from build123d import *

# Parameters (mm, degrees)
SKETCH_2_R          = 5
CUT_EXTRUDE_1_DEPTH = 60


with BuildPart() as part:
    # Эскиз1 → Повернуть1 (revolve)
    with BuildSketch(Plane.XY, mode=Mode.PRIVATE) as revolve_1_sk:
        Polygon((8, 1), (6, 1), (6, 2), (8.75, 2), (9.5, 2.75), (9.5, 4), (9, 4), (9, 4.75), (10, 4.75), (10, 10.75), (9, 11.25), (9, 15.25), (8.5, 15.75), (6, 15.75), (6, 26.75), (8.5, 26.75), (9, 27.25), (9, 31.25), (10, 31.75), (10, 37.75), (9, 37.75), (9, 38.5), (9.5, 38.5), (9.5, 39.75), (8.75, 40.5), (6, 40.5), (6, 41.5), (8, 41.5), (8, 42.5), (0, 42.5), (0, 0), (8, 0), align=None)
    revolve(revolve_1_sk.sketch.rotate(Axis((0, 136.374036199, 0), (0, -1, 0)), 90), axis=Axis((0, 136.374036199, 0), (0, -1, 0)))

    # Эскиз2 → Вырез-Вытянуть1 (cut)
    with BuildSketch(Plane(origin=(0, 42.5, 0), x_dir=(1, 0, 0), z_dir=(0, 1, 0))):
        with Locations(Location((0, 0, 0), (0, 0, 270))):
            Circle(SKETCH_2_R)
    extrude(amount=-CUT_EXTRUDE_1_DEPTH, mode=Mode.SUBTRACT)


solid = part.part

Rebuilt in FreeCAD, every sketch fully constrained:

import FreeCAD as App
import Part
import Sketcher

V = App.Vector
Q = App.Units.Quantity

doc = App.newDocument("Part")
params = doc.addObject("Spreadsheet::Sheet", "Params")
for row, (alias, value) in enumerate([
    ("sketch1_width", "2 mm"),
    ("sketch1_width2", "1 mm"),
    ("sketch1_width3", "8 mm"),
    ("sketch1_height", "6 mm"),
    ("sketch1_height2", "4 mm"),
    ("revolution_angle", "360 deg"),
    ("sketch2_diameter", "10 mm"),
    ("pocket1_length", "60 mm"),
], start=1):
    params.set(f"A{row}", alias)
    params.set(f"B{row}", "=" + value)
    params.setAlias(f"B{row}", alias)

body = doc.addObject("PartDesign::Body", "Body")

sketch1 = body.newObject("Sketcher::SketchObject", "Sketch")
sketch1.AttachmentSupport = (doc.getObject("XY_Plane"), [""])
sketch1.MapMode = "FlatFace"
sketch1.addGeometry([
    Part.LineSegment(V(8, 1, 0), V(6, 1, 0)),
    Part.LineSegment(V(6, 1, 0), V(6, 2, 0)),
    Part.LineSegment(V(6, 2, 0), V(8.8, 2, 0)),
    Part.LineSegment(V(8.8, 2, 0), V(9.5, 2.8, 0)),
    Part.LineSegment(V(9.5, 2.8, 0), V(9.5, 4, 0)),
    Part.LineSegment(V(9.5, 4, 0), V(9, 4, 0)),
    Part.LineSegment(V(9, 4, 0), V(9, 4.8, 0)),
    Part.LineSegment(V(9, 4.8, 0), V(10, 4.8, 0)),
    Part.LineSegment(V(10, 4.8, 0), V(10, 10.8, 0)),
    Part.LineSegment(V(10, 10.8, 0), V(9, 11.2, 0)),
    Part.LineSegment(V(9, 11.2, 0), V(9, 15.2, 0)),
    Part.LineSegment(V(9, 15.2, 0), V(8.5, 15.8, 0)),
    Part.LineSegment(V(8.5, 15.8, 0), V(6, 15.8, 0)),
    Part.LineSegment(V(6, 15.8, 0), V(6, 26.8, 0)),
    Part.LineSegment(V(6, 26.8, 0), V(8.5, 26.8, 0)),
    Part.LineSegment(V(8.5, 26.8, 0), V(9, 27.2, 0)),
    Part.LineSegment(V(9, 27.2, 0), V(9, 31.2, 0)),
    Part.LineSegment(V(9, 31.2, 0), V(10, 31.8, 0)),
    Part.LineSegment(V(10, 31.8, 0), V(10, 37.8, 0)),
    Part.LineSegment(V(10, 37.8, 0), V(9, 37.8, 0)),
    Part.LineSegment(V(9, 37.8, 0), V(9, 38.5, 0)),
    Part.LineSegment(V(9, 38.5, 0), V(9.5, 38.5, 0)),
    Part.LineSegment(V(9.5, 38.5, 0), V(9.5, 39.8, 0)),
    Part.LineSegment(V(9.5, 39.8, 0), V(8.8, 40.5, 0)),
    Part.LineSegment(V(8.8, 40.5, 0), V(6, 40.5, 0)),
    Part.LineSegment(V(6, 40.5, 0), V(6, 41.5, 0)),
    Part.LineSegment(V(6, 41.5, 0), V(8, 41.5, 0)),
    Part.LineSegment(V(8, 41.5, 0), V(8, 42.5, 0)),
    Part.LineSegment(V(8, 42.5, 0), V(0, 42.5, 0)),
    Part.LineSegment(V(0, 42.5, 0), V(0, 0, 0)),
    Part.LineSegment(V(0, 0, 0), V(8, 0, 0)),
    Part.LineSegment(V(8, 0, 0), V(8, 1, 0)),
], False)
sketch1.addConstraint([
    Sketcher.Constraint("Coincident", 0, 2, 1, 1),
    Sketcher.Constraint("Coincident", 1, 2, 2, 1),
    Sketcher.Constraint("Coincident", 2, 2, 3, 1),
    Sketcher.Constraint("Coincident", 3, 2, 4, 1),
    Sketcher.Constraint("Coincident", 4, 2, 5, 1),
    Sketcher.Constraint("Coincident", 5, 2, 6, 1),
    Sketcher.Constraint("Coincident", 6, 2, 7, 1),
    Sketcher.Constraint("Coincident", 7, 2, 8, 1),
    Sketcher.Constraint("Coincident", 8, 2, 9, 1),
    Sketcher.Constraint("Coincident", 9, 2, 10, 1),
    Sketcher.Constraint("Coincident", 10, 2, 11, 1),
    Sketcher.Constraint("Coincident", 11, 2, 12, 1),
    Sketcher.Constraint("Coincident", 12, 2, 13, 1),
    Sketcher.Constraint("Coincident", 13, 2, 14, 1),
    Sketcher.Constraint("Coincident", 14, 2, 15, 1),
    Sketcher.Constraint("Coincident", 15, 2, 16, 1),
    Sketcher.Constraint("Coincident", 16, 2, 17, 1),
    Sketcher.Constraint("Coincident", 17, 2, 18, 1),
    Sketcher.Constraint("Coincident", 18, 2, 19, 1),
    Sketcher.Constraint("Coincident", 19, 2, 20, 1),
    Sketcher.Constraint("Coincident", 20, 2, 21, 1),
    Sketcher.Constraint("Coincident", 21, 2, 22, 1),
    Sketcher.Constraint("Coincident", 22, 2, 23, 1),
    Sketcher.Constraint("Coincident", 23, 2, 24, 1),
    Sketcher.Constraint("Coincident", 24, 2, 25, 1),
    Sketcher.Constraint("Coincident", 25, 2, 26, 1),
    Sketcher.Constraint("Coincident", 26, 2, 27, 1),
    Sketcher.Constraint("Coincident", 27, 2, 28, 1),
    Sketcher.Constraint("Coincident", 28, 2, 29, 1),
    Sketcher.Constraint("Coincident", 29, 2, 30, 1),
    Sketcher.Constraint("Coincident", 30, 2, 31, 1),
    Sketcher.Constraint("Coincident", 31, 2, 0, 1),
    Sketcher.Constraint("Horizontal", 0),
    Sketcher.Constraint("Vertical", 1),
    Sketcher.Constraint("Horizontal", 2),
    Sketcher.Constraint("Vertical", 4),
    Sketcher.Constraint("Horizontal", 5),
    Sketcher.Constraint("Vertical", 6),
    Sketcher.Constraint("Horizontal", 7),
    Sketcher.Constraint("Vertical", 8),
    Sketcher.Constraint("Vertical", 10),
    Sketcher.Constraint("Horizontal", 12),
    Sketcher.Constraint("Vertical", 13),
    Sketcher.Constraint("Horizontal", 14),
    Sketcher.Constraint("Vertical", 16),
    Sketcher.Constraint("Vertical", 18),
    Sketcher.Constraint("Horizontal", 19),
    Sketcher.Constraint("Vertical", 20),
    Sketcher.Constraint("Horizontal", 21),
    Sketcher.Constraint("Vertical", 22),
    Sketcher.Constraint("Horizontal", 24),
    Sketcher.Constraint("Vertical", 25),
    Sketcher.Constraint("Horizontal", 26),
    Sketcher.Constraint("Vertical", 27),
    Sketcher.Constraint("Horizontal", 28),
    Sketcher.Constraint("Vertical", 29),
    Sketcher.Constraint("Horizontal", 30),
    Sketcher.Constraint("Vertical", 31),
    Sketcher.Constraint("Coincident", 29, 2, -1, 1),
    Sketcher.Constraint("Perpendicular", 3, 11),
    Sketcher.Constraint("Perpendicular", 11, 15),
    Sketcher.Constraint("Perpendicular", 15, 23),
    Sketcher.Constraint("Vertical", 6, 2, 9, 2),
    Sketcher.Constraint("Vertical", 1, 2, 12, 2),
    Sketcher.Constraint("Vertical", 11, 2, 14, 2),
    Sketcher.Constraint("Vertical", 10, 2, 15, 2),
    Sketcher.Constraint("Vertical", 8, 2, 17, 2),
    Sketcher.Constraint("Vertical", 16, 2, 19, 2),
    Sketcher.Constraint("Vertical", 4, 2, 21, 2),
    Sketcher.Constraint("Vertical", 2, 2, 23, 2),
    Sketcher.Constraint("Vertical", 13, 2, 24, 2),
    Sketcher.Constraint("Vertical", 27, 2, 30, 2),
    Sketcher.Constraint("Equal", 19, 1),
    Sketcher.Constraint("Equal", 10, 16),
    Sketcher.Constraint("Equal", 8, 18),
    Sketcher.Constraint("Equal", 6, 20),
    Sketcher.Constraint("Equal", 4, 22),
    Sketcher.Constraint("Equal", 1, 25),
    Sketcher.Constraint("Equal", 25, 27),
    Sketcher.Constraint("Equal", 27, 31),
    Sketcher.Constraint("Equal", 11, 15),
    Sketcher.Constraint("Equal", 9, 17),
    Sketcher.Constraint("DistanceX", 0, 2, 0, 1, Q("2 mm")),
    Sketcher.Constraint("DistanceX", 7, 1, 7, 2, Q("1 mm")),
    Sketcher.Constraint("DistanceX", 28, 2, 28, 1, Q("8 mm")),
    Sketcher.Constraint("DistanceY", 8, 1, 8, 2, Q("6 mm")),
    Sketcher.Constraint("DistanceY", 10, 1, 10, 2, Q("4 mm")),
    Sketcher.Constraint("DistanceY", 13, 1, 13, 2, Q("11 mm")),
    Sketcher.Constraint("DistanceX", 5, 2, 5, 1, Q("0.5 mm")),
    Sketcher.Constraint("DistanceX", 12, 2, 12, 1, Q("2.5 mm")),
    Sketcher.Constraint("DistanceY", 29, 2, 29, 1, Q("42.5 mm")),
    Sketcher.Constraint("DistanceY", -1, 1, 4, 2, Q("4 mm")),
    Sketcher.Constraint("DistanceX", -1, 1, 5, 2, Q("9 mm")),
    Sketcher.Constraint("DistanceY", 3, 2, 6, 2, Q("2 mm")),
    Sketcher.Constraint("DistanceY", 8, 2, 11, 2, Q("5 mm")),
])
sketch1.setExpression("Constraints[82]", "Params.sketch1_width")
sketch1.setExpression("Constraints[83]", "Params.sketch1_width2")
sketch1.setExpression("Constraints[84]", "Params.sketch1_width3")
sketch1.setExpression("Constraints[85]", "Params.sketch1_height")
sketch1.setExpression("Constraints[86]", "Params.sketch1_height2")
revolution = body.newObject("PartDesign::Revolution", "Revolution")
revolution.Profile = sketch1
revolution.ReferenceAxis = (sketch1, ["V_Axis"])
revolution.setExpression("Angle", "Params.revolution_angle")

sketch2 = body.newObject("Sketcher::SketchObject", "Sketch001")
sketch2.AttachmentSupport = (doc.getObject("XZ_Plane"), [""])
sketch2.MapMode = "FlatFace"
sketch2.AttachmentOffset = App.Placement(V(0, 0, -42.5), App.Rotation())
sketch2.addGeometry(Part.Circle(V(0, 0, 0), V(0, 0, 1), 5), False)
sketch2.addConstraint([
    Sketcher.Constraint("Coincident", 0, 3, -1, 1),
    Sketcher.Constraint("Diameter", 0, Q("10 mm")),
])
sketch2.setExpression("Constraints[1]", "Params.sketch2_diameter")
pocket1 = body.newObject("PartDesign::Pocket", "Pocket")
pocket1.Profile = sketch2
pocket1.setExpression("Length", "Params.pocket1_length")
pocket1.Reversed = True

doc.recompute()
